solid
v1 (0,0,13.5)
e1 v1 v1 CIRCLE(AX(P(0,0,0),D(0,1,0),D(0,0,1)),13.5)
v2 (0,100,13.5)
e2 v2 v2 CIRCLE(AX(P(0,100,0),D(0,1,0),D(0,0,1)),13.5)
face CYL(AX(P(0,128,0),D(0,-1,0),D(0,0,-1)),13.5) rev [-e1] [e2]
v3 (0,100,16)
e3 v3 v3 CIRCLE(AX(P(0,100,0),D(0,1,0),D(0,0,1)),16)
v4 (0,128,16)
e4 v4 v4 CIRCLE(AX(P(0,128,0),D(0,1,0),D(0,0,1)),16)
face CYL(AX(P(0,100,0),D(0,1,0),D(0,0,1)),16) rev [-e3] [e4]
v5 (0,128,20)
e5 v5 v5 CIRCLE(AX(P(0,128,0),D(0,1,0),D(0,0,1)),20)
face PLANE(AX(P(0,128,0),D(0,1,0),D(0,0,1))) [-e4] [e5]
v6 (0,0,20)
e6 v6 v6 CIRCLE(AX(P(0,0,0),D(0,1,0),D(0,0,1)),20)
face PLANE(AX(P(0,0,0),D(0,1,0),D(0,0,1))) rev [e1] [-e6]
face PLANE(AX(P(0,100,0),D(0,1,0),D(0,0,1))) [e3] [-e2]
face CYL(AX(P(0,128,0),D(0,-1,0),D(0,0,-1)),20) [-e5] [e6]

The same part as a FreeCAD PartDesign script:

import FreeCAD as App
import Part
import Sketcher

V = App.Vector
Q = App.Units.Quantity

doc = App.newDocument("Part")
body = doc.addObject("PartDesign::Body", "Body")

# Sketch on XZ plane
sketch1 = body.newObject("Sketcher::SketchObject", "Sketch")
sketch1.AttachmentSupport = (doc.getObject("XZ_Plane"), [""])
sketch1.MapMode = "FlatFace"
sketch1.addGeometry([
    Part.Circle(V(0, 0, 0), V(0, 0, 1), 20),
    Part.Circle(V(0, 0, 0), V(0, 0, 1), 14),
], False)
sketch1.addConstraint([
    Sketcher.Constraint("Coincident", 0, 3, -1, 1),
    Sketcher.Constraint("Coincident", 1, 3, -1, 1),
    Sketcher.Constraint("Diameter", 0, Q("40 mm")),
    Sketcher.Constraint("Diameter", 1, Q("27 mm")),
])
pad1 = body.newObject("PartDesign::Pad", "Pad")
pad1.Profile = sketch1
pad1.Length = 128
pad1.Reversed = True

# Sketch on XZ plane
sketch2 = body.newObject("Sketcher::SketchObject", "Sketch001")
sketch2.AttachmentSupport = (doc.getObject("XZ_Plane"), [""])
sketch2.MapMode = "FlatFace"
sketch2.AttachmentOffset = App.Placement(V(0, 0, -128), App.Rotation())
sketch2.addGeometry(Part.Circle(V(0, 0, 0), V(0, 0, 1), 16), False)
sketch2.addConstraint([
    Sketcher.Constraint("Coincident", 0, 3, -1, 1),
    Sketcher.Constraint("Diameter", 0, Q("32 mm")),
])
pocket1 = body.newObject("PartDesign::Pocket", "Pocket")
pocket1.Profile = sketch2
pocket1.Length = 28
pocket1.Reversed = True

doc.recompute()
